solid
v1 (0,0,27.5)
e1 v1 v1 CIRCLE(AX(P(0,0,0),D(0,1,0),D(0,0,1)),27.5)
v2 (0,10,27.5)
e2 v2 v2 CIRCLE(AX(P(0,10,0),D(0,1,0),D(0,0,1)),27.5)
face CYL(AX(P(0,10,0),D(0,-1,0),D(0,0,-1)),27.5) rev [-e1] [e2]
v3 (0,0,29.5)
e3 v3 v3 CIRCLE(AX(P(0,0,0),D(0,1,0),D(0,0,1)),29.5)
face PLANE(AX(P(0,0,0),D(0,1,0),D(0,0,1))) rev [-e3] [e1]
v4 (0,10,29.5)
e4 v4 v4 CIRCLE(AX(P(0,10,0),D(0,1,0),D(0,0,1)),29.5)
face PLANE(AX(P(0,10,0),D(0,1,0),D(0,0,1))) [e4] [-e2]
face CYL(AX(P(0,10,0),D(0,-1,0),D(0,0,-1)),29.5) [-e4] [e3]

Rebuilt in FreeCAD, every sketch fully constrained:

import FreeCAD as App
import Part
import Sketcher
from FreeCAD import Vector
Q = App.Units.Quantity

doc = App.newDocument("Part")
body = doc.addObject("PartDesign::Body", "Body")

sketch1 = body.newObject("Sketcher::SketchObject", "Sketch")
sketch1.AttachmentSupport = (doc.getObject("XZ_Plane"), [""])
sketch1.MapMode = "FlatFace"
sketch1.addGeometry(Part.Circle(Vector(0, 0, 0), Vector(0, 0, 1), 30), False)
sketch1.addGeometry(Part.Circle(Vector(0, 0, 0), Vector(0, 0, 1), 28), False)
sketch1.addConstraint(Sketcher.Constraint("Coincident", 0, 3, -1, 1))
sketch1.addConstraint(Sketcher.Constraint("Coincident", 1, 3, -1, 1))
sketch1.addConstraint(Sketcher.Constraint("Diameter", 0, Q("59 mm")))
sketch1.addConstraint(Sketcher.Constraint("Diameter", 1, Q("55 mm")))
pad1 = body.newObject("PartDesign::Pad", "Pad")
pad1.Profile = sketch1
pad1.Length = 10
pad1.Reversed = True

doc.recompute()
